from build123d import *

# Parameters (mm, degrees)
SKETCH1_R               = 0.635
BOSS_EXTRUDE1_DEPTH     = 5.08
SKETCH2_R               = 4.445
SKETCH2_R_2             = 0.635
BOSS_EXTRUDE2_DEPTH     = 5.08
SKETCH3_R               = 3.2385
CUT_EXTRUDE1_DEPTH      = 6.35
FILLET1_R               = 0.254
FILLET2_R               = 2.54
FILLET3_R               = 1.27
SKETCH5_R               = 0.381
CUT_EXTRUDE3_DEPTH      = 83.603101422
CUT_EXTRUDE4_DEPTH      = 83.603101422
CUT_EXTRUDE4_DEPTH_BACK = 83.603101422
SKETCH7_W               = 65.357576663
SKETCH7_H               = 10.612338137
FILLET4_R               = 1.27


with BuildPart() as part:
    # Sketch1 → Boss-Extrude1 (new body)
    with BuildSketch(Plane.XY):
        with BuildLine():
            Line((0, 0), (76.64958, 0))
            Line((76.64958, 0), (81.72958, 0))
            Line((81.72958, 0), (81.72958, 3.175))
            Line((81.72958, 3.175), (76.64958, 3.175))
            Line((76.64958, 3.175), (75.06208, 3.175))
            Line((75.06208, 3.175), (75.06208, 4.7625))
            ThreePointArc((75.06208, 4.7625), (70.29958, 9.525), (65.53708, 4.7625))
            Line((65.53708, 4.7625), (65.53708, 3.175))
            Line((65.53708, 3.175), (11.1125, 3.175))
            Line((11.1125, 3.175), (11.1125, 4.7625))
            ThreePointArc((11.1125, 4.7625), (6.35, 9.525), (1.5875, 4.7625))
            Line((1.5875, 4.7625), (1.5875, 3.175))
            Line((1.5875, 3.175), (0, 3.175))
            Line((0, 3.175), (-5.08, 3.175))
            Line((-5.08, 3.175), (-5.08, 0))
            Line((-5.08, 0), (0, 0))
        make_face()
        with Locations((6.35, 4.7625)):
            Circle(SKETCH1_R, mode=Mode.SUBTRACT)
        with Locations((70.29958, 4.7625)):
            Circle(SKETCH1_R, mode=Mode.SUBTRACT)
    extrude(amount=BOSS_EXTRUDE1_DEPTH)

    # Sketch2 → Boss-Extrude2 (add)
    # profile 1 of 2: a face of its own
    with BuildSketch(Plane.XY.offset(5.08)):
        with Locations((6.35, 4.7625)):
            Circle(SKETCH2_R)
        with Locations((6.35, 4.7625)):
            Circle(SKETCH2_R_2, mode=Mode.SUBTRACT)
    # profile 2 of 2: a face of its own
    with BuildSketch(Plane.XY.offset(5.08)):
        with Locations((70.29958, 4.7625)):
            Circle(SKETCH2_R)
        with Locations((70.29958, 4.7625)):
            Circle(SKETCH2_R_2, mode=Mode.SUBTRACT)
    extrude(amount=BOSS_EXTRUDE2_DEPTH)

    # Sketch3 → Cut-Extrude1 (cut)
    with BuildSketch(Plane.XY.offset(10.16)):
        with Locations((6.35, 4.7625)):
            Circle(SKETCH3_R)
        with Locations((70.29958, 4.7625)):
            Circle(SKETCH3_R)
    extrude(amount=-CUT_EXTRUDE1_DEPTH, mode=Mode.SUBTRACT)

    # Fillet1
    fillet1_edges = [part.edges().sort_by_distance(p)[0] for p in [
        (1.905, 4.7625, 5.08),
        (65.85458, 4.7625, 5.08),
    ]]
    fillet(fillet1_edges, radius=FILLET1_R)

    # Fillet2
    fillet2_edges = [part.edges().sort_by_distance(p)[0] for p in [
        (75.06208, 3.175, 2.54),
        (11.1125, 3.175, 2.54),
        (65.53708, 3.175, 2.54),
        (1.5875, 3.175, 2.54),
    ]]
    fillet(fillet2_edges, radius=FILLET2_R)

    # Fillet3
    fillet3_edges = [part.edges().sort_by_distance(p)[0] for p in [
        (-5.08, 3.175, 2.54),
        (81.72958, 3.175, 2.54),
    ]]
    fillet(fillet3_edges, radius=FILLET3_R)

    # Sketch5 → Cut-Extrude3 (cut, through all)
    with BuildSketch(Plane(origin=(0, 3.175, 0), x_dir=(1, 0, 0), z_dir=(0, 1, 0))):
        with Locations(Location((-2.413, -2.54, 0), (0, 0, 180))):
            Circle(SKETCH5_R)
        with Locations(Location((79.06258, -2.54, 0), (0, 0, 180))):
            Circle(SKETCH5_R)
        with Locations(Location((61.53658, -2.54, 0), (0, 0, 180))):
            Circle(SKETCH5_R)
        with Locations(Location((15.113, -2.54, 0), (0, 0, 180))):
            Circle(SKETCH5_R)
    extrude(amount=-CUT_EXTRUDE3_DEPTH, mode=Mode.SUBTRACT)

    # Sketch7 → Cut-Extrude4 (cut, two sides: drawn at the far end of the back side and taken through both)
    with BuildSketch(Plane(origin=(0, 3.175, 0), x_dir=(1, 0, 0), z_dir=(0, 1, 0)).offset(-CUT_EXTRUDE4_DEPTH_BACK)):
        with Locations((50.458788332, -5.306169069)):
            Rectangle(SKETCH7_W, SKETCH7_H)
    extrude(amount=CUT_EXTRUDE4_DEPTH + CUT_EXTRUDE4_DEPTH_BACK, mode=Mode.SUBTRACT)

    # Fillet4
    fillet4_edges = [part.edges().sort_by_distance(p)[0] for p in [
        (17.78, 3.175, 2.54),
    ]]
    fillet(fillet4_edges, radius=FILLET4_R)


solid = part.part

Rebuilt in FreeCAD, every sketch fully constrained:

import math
import FreeCAD as App
import Part
import Sketcher
from FreeCAD import Vector
Q = App.Units.Quantity


def edges_at(feature, points):
    """Names of the edges that pass closest to the given points."""
    edges = feature.Shape.Edges
    near = lambda p: min(range(len(edges)), key=lambda i: edges[i].distToShape(Part.Vertex(*p))[0])
    return sorted({f"Edge{near(p) + 1}" for p in points})

doc = App.newDocument("Part")
body = doc.addObject("PartDesign::Body", "Body")

# Sketch on XY plane
sketch1 = body.newObject("Sketcher::SketchObject", "Sketch")
sketch1.AttachmentSupport = (doc.getObject("XY_Plane"), [""])
sketch1.MapMode = "FlatFace"
sketch1.addGeometry([
    Part.LineSegment(Vector(81.7, 0, 0), Vector(81.7, 3.2, 0)),  # 0
    Part.LineSegment(Vector(81.7, 3.2, 0), Vector(75.1, 3.2, 0)),  # 1
    Part.LineSegment(Vector(75.1, 3.2, 0), Vector(75.1, 4.8, 0)),  # 2
    Part.ArcOfCircle(Part.Circle(Vector(70.3, 4.8, 0), Vector(0, 0, 1), 4.8), math.radians(0), math.radians(180)),  # 3
    Part.LineSegment(Vector(65.5, 4.8, 0), Vector(65.5, 3.2, 0)),  # 4
    Part.LineSegment(Vector(65.5, 3.2, 0), Vector(11.1, 3.2, 0)),  # 5
    Part.LineSegment(Vector(11.1, 3.2, 0), Vector(11.1, 4.8, 0)),  # 6
    Part.ArcOfCircle(Part.Circle(Vector(6.3, 4.8, 0), Vector(0, 0, 1), 4.8), math.radians(0), math.radians(180)),  # 7
    Part.LineSegment(Vector(1.6, 4.8, 0), Vector(1.6, 3.2, 0)),  # 8
    Part.LineSegment(Vector(1.6, 3.2, 0), Vector(-5.1, 3.2, 0)),  # 9
    Part.LineSegment(Vector(-5.1, 3.2, 0), Vector(-5.1, 0, 0)),  # 10
    Part.LineSegment(Vector(-5.1, 0, 0), Vector(81.7, 0, 0)),  # 11
    Part.Circle(Vector(6.3, 4.8, 0), Vector(0, 0, 1), 0.6),  # 12
    Part.Circle(Vector(70.3, 4.8, 0), Vector(0, 0, 1), 0.6),  # 13
], False)
sketch1.addConstraint([
    Sketcher.Constraint("Coincident", 0, 2, 1, 1),
    Sketcher.Constraint("Coincident", 1, 2, 2, 1),
    Sketcher.Constraint("Tangent", 2, 2, 3, 1),
    Sketcher.Constraint("Tangent", 3, 2, 4, 1),
    Sketcher.Constraint("Coincident", 4, 2, 5, 1),
    Sketcher.Constraint("Coincident", 5, 2, 6, 1),
    Sketcher.Constraint("Tangent", 6, 2, 7, 1),
    Sketcher.Constraint("Tangent", 7, 2, 8, 1),
    Sketcher.Constraint("Coincident", 8, 2, 9, 1),
    Sketcher.Constraint("Coincident", 9, 2, 10, 1),
    Sketcher.Constraint("Coincident", 10, 2, 11, 1),
    Sketcher.Constraint("Coincident", 11, 2, 0, 1),
    Sketcher.Constraint("Vertical", 0),
    Sketcher.Constraint("Horizontal", 1),
    Sketcher.Constraint("Vertical", 2),
    Sketcher.Constraint("Vertical", 4),
    Sketcher.Constraint("Horizontal", 5),
    Sketcher.Constraint("Vertical", 6),
    Sketcher.Constraint("Vertical", 8),
    Sketcher.Constraint("Horizontal", 9),
    Sketcher.Constraint("Vertical", 10),
    Sketcher.Constraint("Horizontal", 11),
    Sketcher.Constraint("Coincident", 12, 3, 7, 3),
    Sketcher.Constraint("Coincident", 13, 3, 3, 3),
    Sketcher.Constraint("Equal", 3, 7),
    Sketcher.Constraint("Equal", 12, 13),
    Sketcher.Constraint("PointOnObject", 10, 2, -1),
    Sketcher.Constraint("Horizontal", 3, 3, 7, 3),
    Sketcher.Constraint("Horizontal", 1, 2, 4, 2),
    Sketcher.Constraint("Horizontal", 5, 2, 8, 2),
    Sketcher.Constraint("Equal", 1, 9),
    Sketcher.Constraint("Diameter", 12, Q("0.05 in")),
    Sketcher.Constraint("Radius", 3, Q("0.1875 in")),
    Sketcher.Constraint("DistanceX", 9, 2, -1, 1, Q("0.2 in")),
    Sketcher.Constraint("DistanceY", 0, 1, 0, 2, Q("0.125 in")),
    Sketcher.Constraint("DistanceY", 2, 1, 2, 2, Q("0.0625 in")),
    Sketcher.Constraint("DistanceX", -1, 1, 7, 3, Q("0.25 in")),
    Sketcher.Constraint("DistanceX", 5, 2, 5, 1, Q("2.1427 in")),
])
pad1 = body.newObject("PartDesign::Pad", "Pad")
pad1.Profile = sketch1
pad1.Length = Q("0.2 in")

# Sketch on XY plane
sketch2 = body.newObject("Sketcher::SketchObject", "Sketch001")
sketch2.AttachmentSupport = (doc.getObject("XY_Plane"), [""])
sketch2.MapMode = "FlatFace"
sketch2.AttachmentOffset = App.Placement(Vector(0, 0, 0.2 * 25.4), App.Rotation())
sketch2.addGeometry([
    Part.Circle(Vector(6.3, 4.8, 0), Vector(0, 0, 1), 4.4),
    Part.Circle(Vector(6.3, 4.8, 0), Vector(0, 0, 1), 0.6),
    Part.Circle(Vector(70.3, 4.8, 0), Vector(0, 0, 1), 4.4),
    Part.Circle(Vector(70.3, 4.8, 0), Vector(0, 0, 1), 0.6),
], False)
sketch2.addConstraint([
    Sketcher.Constraint("Coincident", 1, 3, 0, 3),
    Sketcher.Constraint("Coincident", 3, 3, 2, 3),
    Sketcher.Constraint("Equal", 0, 2),
    Sketcher.Constraint("Equal", 1, 3),
    Sketcher.Constraint("Horizontal", 1, 3, 2, 3),
    Sketcher.Constraint("Diameter", 0, Q("0.35 in")),
    Sketcher.Constraint("Diameter", 1, Q("0.05 in")),
    Sketcher.Constraint("DistanceX", -1, 1, 0, 3, Q("0.25 in")),
    Sketcher.Constraint("DistanceY", -1, 1, 0, 3, Q("0.1875 in")),
    Sketcher.Constraint("DistanceX", -1, 1, 2, 3, Q("2.7677 in")),
])
pad2 = body.newObject("PartDesign::Pad", "Pad001")
pad2.Profile = sketch2
pad2.Length = Q("0.2 in")

# Sketch on XY plane
sketch3 = body.newObject("Sketcher::SketchObject", "Sketch002")
sketch3.AttachmentSupport = (doc.getObject("XY_Plane"), [""])
sketch3.MapMode = "FlatFace"
sketch3.AttachmentOffset = App.Placement(Vector(0, 0, 0.4 * 25.4), App.Rotation())
sketch3.addGeometry([
    Part.Circle(Vector(6.3, 4.8, 0), Vector(0, 0, 1), 3.2),
    Part.Circle(Vector(70.3, 4.8, 0), Vector(0, 0, 1), 3.2),
], False)
sketch3.addConstraint([
    Sketcher.Constraint("Equal", 0, 1),
    Sketcher.Constraint("Horizontal", 0, 3, 1, 3),
    Sketcher.Constraint("Diameter", 0, Q("0.255 in")),
    Sketcher.Constraint("DistanceX", -1, 1, 0, 3, Q("0.25 in")),
    Sketcher.Constraint("DistanceY", -1, 1, 0, 3, Q("0.1875 in")),
    Sketcher.Constraint("DistanceX", -1, 1, 1, 3, Q("2.7677 in")),
])
pocket1 = body.newObject("PartDesign::Pocket", "Pocket")
pocket1.Profile = sketch3
pocket1.Length = Q("0.25 in")
doc.recompute()

fillet = body.newObject("PartDesign::Fillet", "Fillet")
fillet.Base = (pocket1, edges_at(pocket1, [(1.905, 4.763, 5.08), (65.855, 4.763, 5.08)]))
fillet.Radius = Q("0.01 in")
doc.recompute()

fillet2 = body.newObject("PartDesign::Fillet", "Fillet001")
fillet2.Base = (fillet, edges_at(fillet, [
    (75.062, 3.175, 2.54),
    (11.113, 3.175, 2.54),
    (65.537, 3.175, 2.54),
    (1.587, 3.175, 2.54),
]))
fillet2.Radius = Q("0.1 in")
doc.recompute()

fillet3 = body.newObject("PartDesign::Fillet", "Fillet002")
fillet3.Base = (fillet2, edges_at(fillet2, [(-5.08, 3.175, 2.54), (81.73, 3.175, 2.54)]))
fillet3.Radius = Q("0.05 in")

# Sketch on XZ plane
sketch4 = body.newObject("Sketcher::SketchObject", "Sketch003")
sketch4.AttachmentSupport = (doc.getObject("XZ_Plane"), [""])
sketch4.MapMode = "FlatFace"
sketch4.AttachmentOffset = App.Placement(Vector(0, 0, -0.125 * 25.4), App.Rotation())
sketch4.addGeometry([
    Part.Circle(Vector(-2.41, 2.54, 0), Vector(0, 0, 1), 0.38),
    Part.Circle(Vector(79.06, 2.54, 0), Vector(0, 0, 1), 0.38),
    Part.Circle(Vector(61.54, 2.54, 0), Vector(0, 0, 1), 0.38),
    Part.Circle(Vector(15.11, 2.54, 0), Vector(0, 0, 1), 0.38),
], False)
sketch4.addConstraint([
    Sketcher.Constraint("Equal", 0, 1),
    Sketcher.Constraint("Equal", 1, 2),
    Sketcher.Constraint("Equal", 2, 3),
    Sketcher.Constraint("Horizontal", 0, 3, 1, 3),
    Sketcher.Constraint("Horizontal", 1, 3, 2, 3),
    Sketcher.Constraint("Horizontal", 2, 3, 3, 3),
    Sketcher.Constraint("Diameter", 0, Q("0.03 in")),
    Sketcher.Constraint("DistanceY", -1, 1, 0, 3, Q("0.1 in")),
    Sketcher.Constraint("DistanceX", 2, 3, 1, 3, Q("0.69 in")),
    Sketcher.Constraint("DistanceX", 0, 3, 3, 3, Q("0.69 in")),
    Sketcher.Constraint("DistanceX", 0, 3, -1, 1, Q("0.095 in")),
    Sketcher.Constraint("DistanceX", -1, 1, 1, 3, Q("3.1127 in")),
])
pocket2 = body.newObject("PartDesign::Pocket", "Pocket001")
pocket2.Profile = sketch4
pocket2.Type = "ThroughAll"
pocket2.Reversed = True

# Sketch on XZ plane
sketch5 = body.newObject("Sketcher::SketchObject", "Sketch004")
sketch5.AttachmentSupport = (doc.getObject("XZ_Plane"), [""])
sketch5.MapMode = "FlatFace"
sketch5.AttachmentOffset = App.Placement(Vector(0, 0, -0.125 * 25.4), App.Rotation())
sketch5.addGeometry([
    Part.LineSegment(Vector(18, 0, 0), Vector(18, 11, 0)),
    Part.LineSegment(Vector(18, 11, 0), Vector(83, 11, 0)),
    Part.LineSegment(Vector(83, 11, 0), Vector(83, 0, 0)),
    Part.LineSegment(Vector(83, 0, 0), Vector(18, 0, 0)),
], False)
sketch5.addConstraint([
    Sketcher.Constraint("Coincident", 0, 2, 1, 1),
    Sketcher.Constraint("Coincident", 1, 2, 2, 1),
    Sketcher.Constraint("Coincident", 2, 2, 3, 1),
    Sketcher.Constraint("Coincident", 3, 2, 0, 1),
    Sketcher.Constraint("Vertical", 0),
    Sketcher.Constraint("Horizontal", 1),
    Sketcher.Constraint("Vertical", 2),
    Sketcher.Constraint("Horizontal", 3),
    Sketcher.Constraint("PointOnObject", 2, 2, -1),
    Sketcher.Constraint("DistanceX", -1, 1, 0, 2, Q("0.7 in")),
    Sketcher.Constraint("DistanceY", 0, 1, 0, 2, 10.612338),
    Sketcher.Constraint("DistanceX", 1, 1, 1, 2, 65.357577),
])
pocket3 = body.newObject("PartDesign::Pocket", "Pocket002")
pocket3.Profile = sketch5
pocket3.Type = "ThroughAll"
pocket3.Midplane = True
doc.recompute()

fillet4 = body.newObject("PartDesign::Fillet", "Fillet003")
fillet4.Base = (pocket3, edges_at(pocket3, [(17.78, 3.175, 2.54)]))
fillet4.Radius = Q("0.05 in")

doc.recompute()
